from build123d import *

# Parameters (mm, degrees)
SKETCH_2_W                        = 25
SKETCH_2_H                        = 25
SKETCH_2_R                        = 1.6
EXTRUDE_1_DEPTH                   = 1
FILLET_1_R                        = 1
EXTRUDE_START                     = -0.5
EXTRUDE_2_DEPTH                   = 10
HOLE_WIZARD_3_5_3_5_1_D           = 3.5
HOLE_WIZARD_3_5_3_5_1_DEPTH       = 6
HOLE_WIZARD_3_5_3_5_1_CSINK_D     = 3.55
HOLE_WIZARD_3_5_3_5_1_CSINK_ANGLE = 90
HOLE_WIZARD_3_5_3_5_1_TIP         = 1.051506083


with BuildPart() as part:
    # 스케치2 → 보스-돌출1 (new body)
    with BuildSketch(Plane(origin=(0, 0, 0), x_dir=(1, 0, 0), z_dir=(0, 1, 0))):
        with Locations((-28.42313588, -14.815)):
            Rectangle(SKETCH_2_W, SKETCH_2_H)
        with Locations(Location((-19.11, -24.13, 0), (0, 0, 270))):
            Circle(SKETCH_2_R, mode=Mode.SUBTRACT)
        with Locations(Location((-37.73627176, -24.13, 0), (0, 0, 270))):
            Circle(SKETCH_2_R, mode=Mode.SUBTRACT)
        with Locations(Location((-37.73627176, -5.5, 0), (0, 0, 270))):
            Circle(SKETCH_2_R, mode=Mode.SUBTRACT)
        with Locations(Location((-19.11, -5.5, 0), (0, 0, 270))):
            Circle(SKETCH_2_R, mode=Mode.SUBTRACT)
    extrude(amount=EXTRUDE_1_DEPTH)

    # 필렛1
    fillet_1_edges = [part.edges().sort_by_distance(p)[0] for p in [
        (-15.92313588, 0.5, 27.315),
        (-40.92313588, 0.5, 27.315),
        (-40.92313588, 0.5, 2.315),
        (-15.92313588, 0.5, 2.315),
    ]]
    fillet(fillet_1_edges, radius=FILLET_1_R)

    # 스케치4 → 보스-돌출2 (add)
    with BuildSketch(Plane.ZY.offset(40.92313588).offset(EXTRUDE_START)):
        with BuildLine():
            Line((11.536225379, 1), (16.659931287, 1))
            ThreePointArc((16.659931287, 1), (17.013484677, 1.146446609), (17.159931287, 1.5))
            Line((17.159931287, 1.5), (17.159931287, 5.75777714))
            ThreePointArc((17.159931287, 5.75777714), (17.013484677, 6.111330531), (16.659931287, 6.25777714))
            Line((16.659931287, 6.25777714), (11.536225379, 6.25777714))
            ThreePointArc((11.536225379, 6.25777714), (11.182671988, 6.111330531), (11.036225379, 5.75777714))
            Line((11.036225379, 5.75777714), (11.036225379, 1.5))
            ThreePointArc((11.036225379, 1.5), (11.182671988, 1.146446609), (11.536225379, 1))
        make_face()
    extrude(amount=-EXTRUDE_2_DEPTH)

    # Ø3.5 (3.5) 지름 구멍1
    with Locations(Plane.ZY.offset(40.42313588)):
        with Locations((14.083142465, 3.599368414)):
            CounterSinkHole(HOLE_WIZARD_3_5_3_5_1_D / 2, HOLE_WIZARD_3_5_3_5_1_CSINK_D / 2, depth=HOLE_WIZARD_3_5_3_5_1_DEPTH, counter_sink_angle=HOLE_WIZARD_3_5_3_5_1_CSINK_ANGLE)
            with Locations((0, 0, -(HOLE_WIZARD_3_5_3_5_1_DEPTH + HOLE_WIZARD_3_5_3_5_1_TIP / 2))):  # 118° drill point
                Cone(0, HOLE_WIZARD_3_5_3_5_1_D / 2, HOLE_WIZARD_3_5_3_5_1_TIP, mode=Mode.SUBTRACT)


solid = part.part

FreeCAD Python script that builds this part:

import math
import FreeCAD as App
import Part
import Sketcher
from FreeCAD import Vector
Q = App.Units.Quantity


def edges_at(feature, points):
    """Names of the edges that pass closest to the given points."""
    edges = feature.Shape.Edges
    near = lambda p: min(range(len(edges)), key=lambda i: edges[i].distToShape(Part.Vertex(*p))[0])
    return sorted({f"Edge{near(p) + 1}" for p in points})


def add_polygon(sketch, points):
    """Adds a closed chain of lines whose ends are joined by coincident constraints."""
    first, n = sketch.GeometryCount, len(points)
    for a, b in zip(points, points[1:] + points[:1]):
        sketch.addGeometry(Part.LineSegment(App.Vector(*a, 0), App.Vector(*b, 0)), False)
    for i in range(n):
        sketch.addConstraint(Sketcher.Constraint("Coincident", first + i, 2, first + (i + 1) % n, 1))

doc = App.newDocument("Part")
body = doc.addObject("PartDesign::Body", "Body")

# Sketch on XZ plane
sketch1 = body.newObject("Sketcher::SketchObject", "Sketch")
sketch1.AttachmentSupport = (doc.getObject("XZ_Plane"), [""])
sketch1.MapMode = "FlatFace"
add_polygon(sketch1, [(-40.923136, 2.315), (-40.923136, 27.315), (-15.923136, 27.315), (-15.923136, 2.315)])  # lines 0-3
sketch1.addGeometry(Part.Circle(Vector(-37.736272, 24.13, 0), Vector(0, 0, 1), 1.6), False)  # 4
sketch1.addGeometry(Part.Circle(Vector(-19.11, 24.13, 0), Vector(0, 0, 1), 1.6), False)  # 5
sketch1.addGeometry(Part.Circle(Vector(-37.736272, 5.5, 0), Vector(0, 0, 1), 1.6), False)  # 6
sketch1.addGeometry(Part.Circle(Vector(-19.11, 5.5, 0), Vector(0, 0, 1), 1.6), False)  # 7
sketch1.addConstraint([
    Sketcher.Constraint("Vertical", 0),
    Sketcher.Constraint("Horizontal", 1),
    Sketcher.Constraint("Vertical", 2),
    Sketcher.Constraint("Horizontal", 3),
    Sketcher.Constraint("Equal", 4, 5),
    Sketcher.Constraint("Equal", 5, 6),
    Sketcher.Constraint("Equal", 6, 7),
    Sketcher.Constraint("Horizontal", 4, 3, 5, 3),
    Sketcher.Constraint("Horizontal", 6, 3, 7, 3),
    Sketcher.Constraint("Vertical", 4, 3, 6, 3),
    Sketcher.Constraint("Vertical", 5, 3, 7, 3),
    Sketcher.Constraint("Equal", 3, 0),
    Sketcher.Constraint("Diameter", 4, Q("3.2 mm")),
    Sketcher.Constraint("DistanceX", 1, 1, 1, 2, Q("25 mm")),
    Sketcher.Constraint("DistanceY", -1, 1, 6, 3, Q("5.5 mm")),
    Sketcher.Constraint("DistanceY", -1, 1, 4, 3, Q("24.13 mm")),
    Sketcher.Constraint("DistanceX", 5, 3, -1, 1, Q("19.11 mm")),
    Sketcher.Constraint("DistanceY", -1, 1, 0, 2, Q("27.315 mm")),
    Sketcher.Constraint("DistanceX", 4, 3, -1, 1, Q("37.736272 mm")),
    Sketcher.Constraint("DistanceX", 0, 2, -1, 1, Q("40.923136 mm")),
])
pad1 = body.newObject("PartDesign::Pad", "Pad")
pad1.Profile = sketch1
pad1.Length = 1
pad1.Reversed = True
doc.recompute()

fillet = body.newObject("PartDesign::Fillet", "Fillet")
fillet.Base = (pad1, edges_at(pad1, [
    (-15.923, 0.5, 27.315),
    (-40.923, 0.5, 27.315),
    (-40.923, 0.5, 2.315),
    (-15.923, 0.5, 2.315),
]))
fillet.Radius = 1

# Sketch on YZ plane
sketch2 = body.newObject("Sketcher::SketchObject", "Sketch001")
sketch2.AttachmentSupport = (doc.getObject("YZ_Plane"), [""])
sketch2.MapMode = "FlatFace"
sketch2.AttachmentOffset = App.Placement(Vector(0, 0, -40.423136), App.Rotation())
sketch2.addGeometry([
    Part.LineSegment(Vector(1, 11.536225, 0), Vector(1, 16.659931, 0)),  # 0
    Part.ArcOfCircle(Part.Circle(Vector(1.5, 16.659931, 0), Vector(0, 0, 1), 0.5), math.radians(90), math.radians(180)),  # 1
    Part.LineSegment(Vector(1.5, 17.159931, 0), Vector(5.757777, 17.159931, 0)),  # 2
    Part.ArcOfCircle(Part.Circle(Vector(5.757777, 16.659931, 0), Vector(0, 0, 1), 0.5), math.radians(0), math.radians(90)),  # 3
    Part.LineSegment(Vector(6.257777, 16.659931, 0), Vector(6.257777, 11.536225, 0)),  # 4
    Part.ArcOfCircle(Part.Circle(Vector(5.757777, 11.536225, 0), Vector(0, 0, 1), 0.5), math.radians(-90), math.radians(0)),  # 5
    Part.LineSegment(Vector(5.757777, 11.036225, 0), Vector(1.5, 11.036225, 0)),  # 6
    Part.ArcOfCircle(Part.Circle(Vector(1.5, 11.536225, 0), Vector(0, 0, 1), 0.5), math.radians(180), math.radians(270)),  # 7
], False)
sketch2.addConstraint([
    Sketcher.Constraint("Tangent", 0, 2, 1, 2),
    Sketcher.Constraint("Tangent", 1, 1, 2, 1),
    Sketcher.Constraint("Tangent", 2, 2, 3, 2),
    Sketcher.Constraint("Tangent", 3, 1, 4, 1),
    Sketcher.Constraint("Tangent", 4, 2, 5, 2),
    Sketcher.Constraint("Tangent", 5, 1, 6, 1),
    Sketcher.Constraint("Tangent", 6, 2, 7, 2),
    Sketcher.Constraint("Tangent", 7, 1, 0, 1),
    Sketcher.Constraint("Vertical", 0),
    Sketcher.Constraint("Horizontal", 2),
    Sketcher.Constraint("Vertical", 4),
    Sketcher.Constraint("Horizontal", 6),
    Sketcher.Constraint("Equal", 1, 3),
    Sketcher.Constraint("Equal", 3, 5),
    Sketcher.Constraint("Equal", 5, 7),
    Sketcher.Constraint("Radius", 1, Q("0.5 mm")),
    Sketcher.Constraint("DistanceX", -1, 1, 0, 2, Q("1 mm")),
    Sketcher.Constraint("DistanceX", 2, 1, 2, 2, Q("4.257777 mm")),
    Sketcher.Constraint("DistanceY", 0, 1, 0, 2, Q("5.123706 mm")),
    Sketcher.Constraint("DistanceY", -1, 1, 1, 3, Q("16.659931 mm")),
])
pad2 = body.newObject("PartDesign::Pad", "Pad001")
pad2.Profile = sketch2
pad2.Length = 10

# Sketch on YZ plane
sketch3 = body.newObject("Sketcher::SketchObject", "Sketch002")
sketch3.AttachmentSupport = (doc.getObject("YZ_Plane"), [""])
sketch3.MapMode = "FlatFace"
sketch3.AttachmentOffset = App.Placement(Vector(0, 0, -40.423136), App.Rotation())
sketch3.addGeometry(Part.Circle(Vector(3.599368, 14.083142, 0), Vector(0, 0, 1), 1.75), False)
sketch3.addConstraint([
    Sketcher.Constraint("Diameter", 0, Q("3.5 mm")),
    Sketcher.Constraint("DistanceX", -1, 1, 0, 3, Q("3.599368 mm")),
    Sketcher.Constraint("DistanceY", -1, 1, 0, 3, Q("14.083142 mm")),
])
doc.recompute()
hole = body.newObject("PartDesign::Hole", "Hole")
hole.Profile = sketch3
hole.ThreadType = "None"
hole.Diameter = 3.5
hole.DepthType = "Dimension"
hole.Depth = 6
hole.DrillPoint = "Angled"
hole.DrillPointAngle = 118
hole.HoleCutType = "Countersink"
hole.HoleCutDiameter = 3.55
hole.HoleCutCountersinkAngle = 90
hole.Reversed = True

doc.recompute()
